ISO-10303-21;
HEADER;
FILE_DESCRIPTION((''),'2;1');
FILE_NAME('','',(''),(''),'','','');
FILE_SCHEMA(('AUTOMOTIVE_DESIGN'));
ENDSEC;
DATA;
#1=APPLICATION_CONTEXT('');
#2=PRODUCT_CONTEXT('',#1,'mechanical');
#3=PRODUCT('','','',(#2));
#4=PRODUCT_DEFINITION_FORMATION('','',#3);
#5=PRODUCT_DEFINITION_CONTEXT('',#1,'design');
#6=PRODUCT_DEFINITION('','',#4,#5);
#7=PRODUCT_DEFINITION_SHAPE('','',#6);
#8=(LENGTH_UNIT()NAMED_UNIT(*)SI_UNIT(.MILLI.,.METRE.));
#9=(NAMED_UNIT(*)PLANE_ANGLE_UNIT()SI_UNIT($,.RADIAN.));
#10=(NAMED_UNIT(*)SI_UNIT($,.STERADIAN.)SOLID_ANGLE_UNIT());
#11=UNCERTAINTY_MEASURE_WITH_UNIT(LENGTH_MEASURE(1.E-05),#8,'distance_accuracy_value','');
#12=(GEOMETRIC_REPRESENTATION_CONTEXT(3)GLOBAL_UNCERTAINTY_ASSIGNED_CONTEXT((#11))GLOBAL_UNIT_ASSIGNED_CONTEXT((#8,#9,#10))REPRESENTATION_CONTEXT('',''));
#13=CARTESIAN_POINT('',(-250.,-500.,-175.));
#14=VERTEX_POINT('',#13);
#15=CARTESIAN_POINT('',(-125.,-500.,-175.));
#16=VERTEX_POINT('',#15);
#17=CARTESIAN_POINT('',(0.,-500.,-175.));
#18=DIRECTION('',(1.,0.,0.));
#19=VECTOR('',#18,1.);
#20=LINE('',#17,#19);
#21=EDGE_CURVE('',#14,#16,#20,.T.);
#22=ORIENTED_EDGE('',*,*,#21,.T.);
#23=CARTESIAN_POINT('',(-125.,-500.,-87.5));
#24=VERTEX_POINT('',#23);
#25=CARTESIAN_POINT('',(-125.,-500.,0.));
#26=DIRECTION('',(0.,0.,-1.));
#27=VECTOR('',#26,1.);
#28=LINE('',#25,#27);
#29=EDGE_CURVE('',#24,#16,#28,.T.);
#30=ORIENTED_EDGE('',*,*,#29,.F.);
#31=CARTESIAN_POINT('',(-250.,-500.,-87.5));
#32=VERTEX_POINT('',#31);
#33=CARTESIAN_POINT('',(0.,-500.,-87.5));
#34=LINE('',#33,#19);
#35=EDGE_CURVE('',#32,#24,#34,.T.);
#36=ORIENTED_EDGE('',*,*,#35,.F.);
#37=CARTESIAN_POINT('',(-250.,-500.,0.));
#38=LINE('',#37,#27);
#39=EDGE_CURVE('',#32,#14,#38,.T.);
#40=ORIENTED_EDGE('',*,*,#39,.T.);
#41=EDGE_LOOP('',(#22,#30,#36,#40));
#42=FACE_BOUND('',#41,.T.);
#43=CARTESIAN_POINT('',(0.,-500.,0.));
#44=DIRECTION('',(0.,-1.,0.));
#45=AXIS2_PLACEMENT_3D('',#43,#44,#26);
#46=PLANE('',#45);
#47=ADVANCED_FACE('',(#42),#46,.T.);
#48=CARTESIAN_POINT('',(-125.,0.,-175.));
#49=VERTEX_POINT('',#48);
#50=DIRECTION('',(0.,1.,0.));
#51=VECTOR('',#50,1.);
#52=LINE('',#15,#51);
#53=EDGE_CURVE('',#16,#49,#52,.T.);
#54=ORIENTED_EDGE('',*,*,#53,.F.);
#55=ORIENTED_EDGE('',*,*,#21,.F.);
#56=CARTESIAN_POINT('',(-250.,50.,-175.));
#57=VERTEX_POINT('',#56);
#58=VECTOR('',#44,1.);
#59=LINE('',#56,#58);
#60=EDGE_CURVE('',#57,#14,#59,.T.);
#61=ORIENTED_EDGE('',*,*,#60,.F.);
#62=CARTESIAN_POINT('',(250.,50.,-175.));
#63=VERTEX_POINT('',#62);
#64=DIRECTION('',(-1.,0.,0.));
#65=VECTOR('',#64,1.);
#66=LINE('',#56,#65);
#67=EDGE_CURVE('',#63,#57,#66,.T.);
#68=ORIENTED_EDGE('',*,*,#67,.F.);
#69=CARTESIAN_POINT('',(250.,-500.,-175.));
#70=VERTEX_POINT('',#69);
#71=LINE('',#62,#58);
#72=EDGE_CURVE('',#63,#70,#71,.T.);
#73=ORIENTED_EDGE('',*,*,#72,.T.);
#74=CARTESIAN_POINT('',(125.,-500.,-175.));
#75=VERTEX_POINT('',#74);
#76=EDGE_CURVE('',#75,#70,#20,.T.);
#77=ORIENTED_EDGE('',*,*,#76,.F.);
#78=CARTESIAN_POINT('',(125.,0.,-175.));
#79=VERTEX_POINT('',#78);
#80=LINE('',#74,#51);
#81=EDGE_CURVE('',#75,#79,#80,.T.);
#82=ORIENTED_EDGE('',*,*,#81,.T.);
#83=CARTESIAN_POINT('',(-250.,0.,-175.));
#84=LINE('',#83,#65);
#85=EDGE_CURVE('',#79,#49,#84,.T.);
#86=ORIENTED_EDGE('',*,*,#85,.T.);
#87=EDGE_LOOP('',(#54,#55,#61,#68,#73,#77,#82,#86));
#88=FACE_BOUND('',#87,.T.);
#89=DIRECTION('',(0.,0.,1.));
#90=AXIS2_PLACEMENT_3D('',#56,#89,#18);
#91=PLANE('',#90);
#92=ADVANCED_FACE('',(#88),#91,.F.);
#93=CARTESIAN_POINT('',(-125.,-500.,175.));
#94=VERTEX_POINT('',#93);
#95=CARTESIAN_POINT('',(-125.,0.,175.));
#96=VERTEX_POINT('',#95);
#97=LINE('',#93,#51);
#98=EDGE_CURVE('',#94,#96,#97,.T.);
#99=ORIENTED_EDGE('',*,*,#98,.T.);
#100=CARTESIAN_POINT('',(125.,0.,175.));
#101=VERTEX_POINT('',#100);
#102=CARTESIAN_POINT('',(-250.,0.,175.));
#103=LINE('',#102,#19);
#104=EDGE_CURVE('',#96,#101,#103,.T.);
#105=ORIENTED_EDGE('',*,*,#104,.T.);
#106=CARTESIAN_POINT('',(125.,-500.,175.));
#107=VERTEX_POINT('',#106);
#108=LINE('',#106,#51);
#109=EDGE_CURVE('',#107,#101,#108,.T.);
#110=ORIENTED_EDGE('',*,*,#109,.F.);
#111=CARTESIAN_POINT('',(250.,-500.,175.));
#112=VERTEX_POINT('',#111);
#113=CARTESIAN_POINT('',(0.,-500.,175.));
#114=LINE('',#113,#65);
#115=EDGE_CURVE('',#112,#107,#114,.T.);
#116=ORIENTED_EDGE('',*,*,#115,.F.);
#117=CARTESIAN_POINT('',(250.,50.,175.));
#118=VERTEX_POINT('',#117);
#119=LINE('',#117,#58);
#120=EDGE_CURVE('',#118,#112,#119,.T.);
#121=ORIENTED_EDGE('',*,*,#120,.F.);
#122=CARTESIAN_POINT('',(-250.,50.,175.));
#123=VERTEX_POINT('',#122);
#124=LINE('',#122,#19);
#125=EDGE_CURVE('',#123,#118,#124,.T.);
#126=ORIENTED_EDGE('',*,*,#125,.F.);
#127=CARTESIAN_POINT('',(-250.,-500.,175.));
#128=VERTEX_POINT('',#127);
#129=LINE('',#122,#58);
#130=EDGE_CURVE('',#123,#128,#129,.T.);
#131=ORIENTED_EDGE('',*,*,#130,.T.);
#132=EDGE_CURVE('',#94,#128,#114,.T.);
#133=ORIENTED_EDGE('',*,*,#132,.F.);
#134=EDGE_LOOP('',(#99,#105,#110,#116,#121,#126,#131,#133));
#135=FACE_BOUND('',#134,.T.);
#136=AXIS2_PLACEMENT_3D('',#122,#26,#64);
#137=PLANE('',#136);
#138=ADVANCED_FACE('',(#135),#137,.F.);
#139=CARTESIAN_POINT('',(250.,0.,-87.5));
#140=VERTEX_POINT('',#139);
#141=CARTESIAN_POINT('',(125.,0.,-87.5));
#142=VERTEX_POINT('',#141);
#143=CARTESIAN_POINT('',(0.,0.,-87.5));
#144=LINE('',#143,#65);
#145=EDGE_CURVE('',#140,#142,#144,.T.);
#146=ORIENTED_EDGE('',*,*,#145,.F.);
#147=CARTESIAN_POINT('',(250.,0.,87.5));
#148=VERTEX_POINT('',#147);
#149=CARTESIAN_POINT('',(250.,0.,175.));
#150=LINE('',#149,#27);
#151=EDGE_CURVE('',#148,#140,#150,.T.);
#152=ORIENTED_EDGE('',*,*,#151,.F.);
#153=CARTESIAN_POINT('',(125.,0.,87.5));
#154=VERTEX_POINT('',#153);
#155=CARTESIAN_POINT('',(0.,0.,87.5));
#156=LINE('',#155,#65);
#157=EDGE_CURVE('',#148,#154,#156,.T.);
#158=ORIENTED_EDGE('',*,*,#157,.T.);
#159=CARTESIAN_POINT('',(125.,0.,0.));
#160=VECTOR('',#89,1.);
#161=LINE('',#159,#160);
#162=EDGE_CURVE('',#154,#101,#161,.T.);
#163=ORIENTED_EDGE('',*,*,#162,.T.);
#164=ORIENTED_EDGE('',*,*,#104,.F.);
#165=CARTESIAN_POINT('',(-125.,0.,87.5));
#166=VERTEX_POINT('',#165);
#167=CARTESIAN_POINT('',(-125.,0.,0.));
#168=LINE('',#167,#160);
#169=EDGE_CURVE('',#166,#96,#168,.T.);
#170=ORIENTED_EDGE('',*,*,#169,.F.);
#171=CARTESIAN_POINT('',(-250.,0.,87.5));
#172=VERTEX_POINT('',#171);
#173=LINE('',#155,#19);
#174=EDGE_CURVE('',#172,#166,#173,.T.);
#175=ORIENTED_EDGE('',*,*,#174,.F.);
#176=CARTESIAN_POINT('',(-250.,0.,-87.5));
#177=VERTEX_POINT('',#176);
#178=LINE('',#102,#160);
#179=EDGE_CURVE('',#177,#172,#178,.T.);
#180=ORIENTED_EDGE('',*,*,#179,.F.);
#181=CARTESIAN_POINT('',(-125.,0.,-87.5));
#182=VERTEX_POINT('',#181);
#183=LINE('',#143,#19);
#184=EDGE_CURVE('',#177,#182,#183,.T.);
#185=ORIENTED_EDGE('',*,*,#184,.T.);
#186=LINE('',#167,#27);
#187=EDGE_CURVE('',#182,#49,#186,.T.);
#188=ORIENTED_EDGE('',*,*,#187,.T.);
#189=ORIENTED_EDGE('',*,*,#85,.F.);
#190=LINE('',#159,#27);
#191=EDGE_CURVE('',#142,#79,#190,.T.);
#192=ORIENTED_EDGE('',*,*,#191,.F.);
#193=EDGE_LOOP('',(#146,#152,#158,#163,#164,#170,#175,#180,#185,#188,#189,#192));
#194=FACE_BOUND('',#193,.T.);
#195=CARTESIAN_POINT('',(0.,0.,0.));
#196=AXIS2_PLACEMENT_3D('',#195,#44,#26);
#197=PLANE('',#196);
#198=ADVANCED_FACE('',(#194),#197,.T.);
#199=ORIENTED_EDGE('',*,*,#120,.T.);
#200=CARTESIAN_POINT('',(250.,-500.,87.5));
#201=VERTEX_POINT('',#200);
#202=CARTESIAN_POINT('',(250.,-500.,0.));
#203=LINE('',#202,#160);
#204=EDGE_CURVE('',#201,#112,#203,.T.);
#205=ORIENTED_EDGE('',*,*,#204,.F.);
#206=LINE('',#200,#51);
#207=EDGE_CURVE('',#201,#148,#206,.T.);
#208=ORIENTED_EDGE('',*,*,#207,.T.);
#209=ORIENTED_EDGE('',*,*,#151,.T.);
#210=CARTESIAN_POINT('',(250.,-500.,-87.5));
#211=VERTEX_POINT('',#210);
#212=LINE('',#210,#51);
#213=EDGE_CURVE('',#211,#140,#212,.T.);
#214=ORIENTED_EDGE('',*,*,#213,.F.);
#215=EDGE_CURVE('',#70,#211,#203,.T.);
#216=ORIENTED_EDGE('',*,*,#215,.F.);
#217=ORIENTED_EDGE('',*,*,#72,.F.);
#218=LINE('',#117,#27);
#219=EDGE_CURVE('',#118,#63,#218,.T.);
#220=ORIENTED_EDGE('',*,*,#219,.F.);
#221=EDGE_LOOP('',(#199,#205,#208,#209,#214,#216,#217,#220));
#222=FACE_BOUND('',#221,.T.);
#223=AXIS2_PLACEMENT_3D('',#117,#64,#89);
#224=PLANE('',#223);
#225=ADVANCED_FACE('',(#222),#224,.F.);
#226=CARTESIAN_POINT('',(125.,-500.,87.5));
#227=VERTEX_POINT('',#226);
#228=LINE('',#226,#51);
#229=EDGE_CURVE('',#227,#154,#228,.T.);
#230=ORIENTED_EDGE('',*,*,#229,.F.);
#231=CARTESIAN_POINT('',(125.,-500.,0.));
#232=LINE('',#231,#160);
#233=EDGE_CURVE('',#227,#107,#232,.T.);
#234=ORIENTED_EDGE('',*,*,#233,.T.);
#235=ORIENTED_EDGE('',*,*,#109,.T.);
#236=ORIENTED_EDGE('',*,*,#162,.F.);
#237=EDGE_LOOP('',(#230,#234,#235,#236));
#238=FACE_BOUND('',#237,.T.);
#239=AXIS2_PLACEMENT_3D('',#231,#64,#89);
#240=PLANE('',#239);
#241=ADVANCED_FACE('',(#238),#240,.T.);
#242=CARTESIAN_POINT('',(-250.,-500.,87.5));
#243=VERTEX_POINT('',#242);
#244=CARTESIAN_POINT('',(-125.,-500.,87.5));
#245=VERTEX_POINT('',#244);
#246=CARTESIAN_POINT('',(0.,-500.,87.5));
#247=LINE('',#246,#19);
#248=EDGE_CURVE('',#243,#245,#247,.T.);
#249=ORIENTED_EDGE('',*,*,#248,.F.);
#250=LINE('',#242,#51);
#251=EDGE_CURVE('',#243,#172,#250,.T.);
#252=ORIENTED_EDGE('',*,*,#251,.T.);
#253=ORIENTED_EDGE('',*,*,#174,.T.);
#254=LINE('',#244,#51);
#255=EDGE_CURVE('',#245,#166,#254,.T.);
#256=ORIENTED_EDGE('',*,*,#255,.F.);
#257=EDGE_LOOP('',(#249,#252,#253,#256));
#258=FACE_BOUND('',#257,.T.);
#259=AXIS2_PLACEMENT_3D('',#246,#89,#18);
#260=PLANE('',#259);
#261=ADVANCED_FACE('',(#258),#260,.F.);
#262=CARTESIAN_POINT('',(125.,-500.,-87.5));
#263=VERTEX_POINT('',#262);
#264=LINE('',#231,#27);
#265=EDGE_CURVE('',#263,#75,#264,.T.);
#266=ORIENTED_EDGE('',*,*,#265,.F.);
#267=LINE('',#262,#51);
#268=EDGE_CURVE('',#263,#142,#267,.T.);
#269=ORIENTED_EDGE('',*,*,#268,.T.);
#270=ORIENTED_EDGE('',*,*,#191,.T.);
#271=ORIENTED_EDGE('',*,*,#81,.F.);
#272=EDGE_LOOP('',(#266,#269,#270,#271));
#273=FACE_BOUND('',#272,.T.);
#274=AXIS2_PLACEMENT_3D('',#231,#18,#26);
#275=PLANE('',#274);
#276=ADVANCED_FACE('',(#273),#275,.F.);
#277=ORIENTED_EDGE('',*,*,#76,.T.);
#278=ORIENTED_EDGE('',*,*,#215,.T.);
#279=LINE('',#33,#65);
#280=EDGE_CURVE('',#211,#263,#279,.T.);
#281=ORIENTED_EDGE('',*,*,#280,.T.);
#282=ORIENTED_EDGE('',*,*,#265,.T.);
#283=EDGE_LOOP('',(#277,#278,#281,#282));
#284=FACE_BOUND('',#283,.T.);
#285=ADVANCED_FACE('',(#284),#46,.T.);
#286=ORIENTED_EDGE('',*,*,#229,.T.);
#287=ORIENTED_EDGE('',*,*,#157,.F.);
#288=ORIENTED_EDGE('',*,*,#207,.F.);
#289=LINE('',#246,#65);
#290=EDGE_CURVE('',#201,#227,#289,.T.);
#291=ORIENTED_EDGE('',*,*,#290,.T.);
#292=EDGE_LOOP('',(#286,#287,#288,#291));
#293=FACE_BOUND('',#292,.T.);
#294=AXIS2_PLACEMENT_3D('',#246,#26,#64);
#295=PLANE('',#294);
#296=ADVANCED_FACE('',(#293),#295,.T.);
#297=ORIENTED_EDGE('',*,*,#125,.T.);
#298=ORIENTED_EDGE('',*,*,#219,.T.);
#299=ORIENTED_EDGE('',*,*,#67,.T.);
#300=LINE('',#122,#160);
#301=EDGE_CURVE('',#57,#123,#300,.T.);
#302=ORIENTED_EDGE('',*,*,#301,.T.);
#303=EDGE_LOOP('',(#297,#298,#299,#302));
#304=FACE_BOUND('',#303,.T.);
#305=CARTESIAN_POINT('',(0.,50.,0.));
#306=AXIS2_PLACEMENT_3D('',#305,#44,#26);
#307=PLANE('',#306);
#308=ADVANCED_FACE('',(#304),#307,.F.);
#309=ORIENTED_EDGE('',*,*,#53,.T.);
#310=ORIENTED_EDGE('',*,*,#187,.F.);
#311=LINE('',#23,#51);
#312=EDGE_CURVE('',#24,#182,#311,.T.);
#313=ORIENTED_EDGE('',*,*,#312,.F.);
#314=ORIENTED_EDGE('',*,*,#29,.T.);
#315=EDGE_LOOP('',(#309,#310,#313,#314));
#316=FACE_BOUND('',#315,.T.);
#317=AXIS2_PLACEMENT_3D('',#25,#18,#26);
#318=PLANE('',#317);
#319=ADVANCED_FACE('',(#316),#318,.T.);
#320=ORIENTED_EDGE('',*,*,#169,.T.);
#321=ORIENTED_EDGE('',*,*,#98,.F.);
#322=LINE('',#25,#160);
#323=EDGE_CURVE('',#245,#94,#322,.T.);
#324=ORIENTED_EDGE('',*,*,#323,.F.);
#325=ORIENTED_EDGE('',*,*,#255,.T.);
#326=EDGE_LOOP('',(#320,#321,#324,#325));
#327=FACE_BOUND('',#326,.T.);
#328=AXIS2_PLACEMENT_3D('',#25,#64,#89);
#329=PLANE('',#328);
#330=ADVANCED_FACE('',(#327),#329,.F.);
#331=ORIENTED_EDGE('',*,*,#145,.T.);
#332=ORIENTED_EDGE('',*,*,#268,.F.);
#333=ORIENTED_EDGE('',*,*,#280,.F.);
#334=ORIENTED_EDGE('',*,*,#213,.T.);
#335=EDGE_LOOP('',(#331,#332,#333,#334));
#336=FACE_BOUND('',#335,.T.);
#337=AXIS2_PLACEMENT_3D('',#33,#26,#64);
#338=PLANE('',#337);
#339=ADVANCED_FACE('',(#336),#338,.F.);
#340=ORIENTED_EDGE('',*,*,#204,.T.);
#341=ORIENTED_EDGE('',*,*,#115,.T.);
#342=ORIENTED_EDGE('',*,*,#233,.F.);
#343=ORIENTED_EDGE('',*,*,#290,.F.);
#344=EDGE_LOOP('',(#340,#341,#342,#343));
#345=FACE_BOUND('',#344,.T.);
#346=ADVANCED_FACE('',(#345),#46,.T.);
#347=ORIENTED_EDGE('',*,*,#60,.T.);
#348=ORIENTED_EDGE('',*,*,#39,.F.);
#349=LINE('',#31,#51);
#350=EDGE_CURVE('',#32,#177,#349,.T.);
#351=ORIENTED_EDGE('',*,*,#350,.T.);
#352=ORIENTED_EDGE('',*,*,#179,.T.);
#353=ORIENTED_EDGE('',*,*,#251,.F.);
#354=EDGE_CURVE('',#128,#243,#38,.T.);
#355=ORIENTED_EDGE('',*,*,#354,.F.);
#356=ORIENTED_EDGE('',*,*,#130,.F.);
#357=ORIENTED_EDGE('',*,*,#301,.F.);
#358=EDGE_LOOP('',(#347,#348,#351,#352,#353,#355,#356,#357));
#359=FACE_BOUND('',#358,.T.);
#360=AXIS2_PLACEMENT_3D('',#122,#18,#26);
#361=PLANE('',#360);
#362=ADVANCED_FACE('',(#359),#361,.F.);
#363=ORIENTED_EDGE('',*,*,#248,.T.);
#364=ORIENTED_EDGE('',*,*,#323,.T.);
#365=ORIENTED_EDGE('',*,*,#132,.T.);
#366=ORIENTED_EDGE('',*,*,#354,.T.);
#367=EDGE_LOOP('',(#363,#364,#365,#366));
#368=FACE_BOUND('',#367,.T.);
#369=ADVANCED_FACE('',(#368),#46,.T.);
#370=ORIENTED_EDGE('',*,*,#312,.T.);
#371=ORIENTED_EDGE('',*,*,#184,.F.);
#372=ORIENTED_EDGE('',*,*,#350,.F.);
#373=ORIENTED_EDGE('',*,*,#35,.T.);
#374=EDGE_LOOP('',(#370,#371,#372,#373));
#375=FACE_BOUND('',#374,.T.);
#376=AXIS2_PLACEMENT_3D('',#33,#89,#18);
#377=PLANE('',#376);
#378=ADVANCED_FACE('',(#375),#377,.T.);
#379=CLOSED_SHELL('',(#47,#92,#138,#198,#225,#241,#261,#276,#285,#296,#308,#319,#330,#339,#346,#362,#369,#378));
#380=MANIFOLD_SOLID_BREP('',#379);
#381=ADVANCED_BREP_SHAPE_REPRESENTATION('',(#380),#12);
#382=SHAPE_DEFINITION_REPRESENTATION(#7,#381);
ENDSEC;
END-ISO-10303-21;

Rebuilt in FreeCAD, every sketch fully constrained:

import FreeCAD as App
import Part
import Sketcher
Q = App.Units.Quantity

doc = App.newDocument("Part")
params = doc.addObject("Spreadsheet::Sheet", "Params")
for row, (alias, value) in enumerate([
    ("sketch1_width", "500 mm"),
    ("sketch1_height", "350 mm"),
    ("pad1_length", "50 mm"),
    ("sketch2_width", "125 mm"),
    ("sketch2_height", "87.5 mm"),
    ("pad2_length", "500 mm"),
], start=1):
    params.set(f"A{row}", alias)
    params.set(f"B{row}", "=" + value)
    params.setAlias(f"B{row}", alias)

body = doc.addObject("PartDesign::Body", "Body")

# Sketch on XZ plane
sketch1 = body.newObject("Sketcher::SketchObject", "Sketch")
sketch1.AttachmentSupport = (doc.getObject("XZ_Plane"), [""])
sketch1.MapMode = "FlatFace"
sketch1.addGeometry([
    Part.LineSegment(App.Vector(-250, -175, 0), App.Vector(-250, 175, 0)),
    Part.LineSegment(App.Vector(-250, 175, 0), App.Vector(250, 175, 0)),
    Part.LineSegment(App.Vector(250, 175, 0), App.Vector(250, -175, 0)),
    Part.LineSegment(App.Vector(250, -175, 0), App.Vector(-250, -175, 0)),
], False)
sketch1.addConstraint([
    Sketcher.Constraint("Coincident", 0, 2, 1, 1),
    Sketcher.Constraint("Coincident", 1, 2, 2, 1),
    Sketcher.Constraint("Coincident", 2, 2, 3, 1),
    Sketcher.Constraint("Coincident", 3, 2, 0, 1),
    Sketcher.Constraint("Vertical", 0),
    Sketcher.Constraint("Horizontal", 1),
    Sketcher.Constraint("Vertical", 2),
    Sketcher.Constraint("Horizontal", 3),
    Sketcher.Constraint("Symmetric", 0, 2, 2, 2, -1, 1),
    Sketcher.Constraint("DistanceX", 1, 1, 1, 2, Q("500 mm")),
    Sketcher.Constraint("DistanceY", 0, 1, 0, 2, Q("350 mm")),
])
sketch1.setExpression("Constraints[9]", "Params.sketch1_width")
sketch1.setExpression("Constraints[10]", "Params.sketch1_height")
pad1 = body.newObject("PartDesign::Pad", "Pad")
pad1.Profile = sketch1
pad1.setExpression("Length", "Params.pad1_length")
pad1.Reversed = True

# Sketch on XZ plane
sketch2 = body.newObject("Sketcher::SketchObject", "Sketch001")
sketch2.AttachmentSupport = (doc.getObject("XZ_Plane"), [""])
sketch2.MapMode = "FlatFace"
sketch2.addGeometry([
    Part.LineSegment(App.Vector(-250, 175, 0), App.Vector(-250, 87.5, 0)),  # 0
    Part.LineSegment(App.Vector(-250, 87.5, 0), App.Vector(-125, 87.5, 0)),  # 1
    Part.LineSegment(App.Vector(-125, 87.5, 0), App.Vector(-125, 175, 0)),  # 2
    Part.LineSegment(App.Vector(-125, 175, 0), App.Vector(-250, 175, 0)),  # 3
    Part.LineSegment(App.Vector(-250, -87.5, 0), App.Vector(-250, -175, 0)),  # 4
    Part.LineSegment(App.Vector(-250, -175, 0), App.Vector(-125, -175, 0)),  # 5
    Part.LineSegment(App.Vector(-125, -175, 0), App.Vector(-125, -87.5, 0)),  # 6
    Part.LineSegment(App.Vector(-125, -87.5, 0), App.Vector(-250, -87.5, 0)),  # 7
    Part.LineSegment(App.Vector(125, -87.5, 0), App.Vector(125, -175, 0)),  # 8
    Part.LineSegment(App.Vector(125, -175, 0), App.Vector(250, -175, 0)),  # 9
    Part.LineSegment(App.Vector(250, -175, 0), App.Vector(250, -87.5, 0)),  # 10
    Part.LineSegment(App.Vector(250, -87.5, 0), App.Vector(125, -87.5, 0)),  # 11
    Part.LineSegment(App.Vector(125, 175, 0), App.Vector(125, 87.5, 0)),  # 12
    Part.LineSegment(App.Vector(125, 87.5, 0), App.Vector(250, 87.5, 0)),  # 13
    Part.LineSegment(App.Vector(250, 87.5, 0), App.Vector(250, 175, 0)),  # 14
    Part.LineSegment(App.Vector(250, 175, 0), App.Vector(125, 175, 0)),  # 15
], False)
sketch2.addConstraint([
    Sketcher.Constraint("Coincident", 0, 2, 1, 1),
    Sketcher.Constraint("Coincident", 1, 2, 2, 1),
    Sketcher.Constraint("Coincident", 2, 2, 3, 1),
    Sketcher.Constraint("Coincident", 3, 2, 0, 1),
    Sketcher.Constraint("Coincident", 4, 2, 5, 1),
    Sketcher.Constraint("Coincident", 5, 2, 6, 1),
    Sketcher.Constraint("Coincident", 6, 2, 7, 1),
    Sketcher.Constraint("Coincident", 7, 2, 4, 1),
    Sketcher.Constraint("Coincident", 8, 2, 9, 1),
    Sketcher.Constraint("Coincident", 9, 2, 10, 1),
    Sketcher.Constraint("Coincident", 10, 2, 11, 1),
    Sketcher.Constraint("Coincident", 11, 2, 8, 1),
    Sketcher.Constraint("Coincident", 12, 2, 13, 1),
    Sketcher.Constraint("Coincident", 13, 2, 14, 1),
    Sketcher.Constraint("Coincident", 14, 2, 15, 1),
    Sketcher.Constraint("Coincident", 15, 2, 12, 1),
    Sketcher.Constraint("Vertical", 0),
    Sketcher.Constraint("Horizontal", 1),
    Sketcher.Constraint("Vertical", 2),
    Sketcher.Constraint("Horizontal", 3),
    Sketcher.Constraint("Vertical", 4),
    Sketcher.Constraint("Horizontal", 5),
    Sketcher.Constraint("Vertical", 6),
    Sketcher.Constraint("Horizontal", 7),
    Sketcher.Constraint("Vertical", 8),
    Sketcher.Constraint("Horizontal", 9),
    Sketcher.Constraint("Vertical", 10),
    Sketcher.Constraint("Horizontal", 11),
    Sketcher.Constraint("Vertical", 12),
    Sketcher.Constraint("Horizontal", 13),
    Sketcher.Constraint("Vertical", 14),
    Sketcher.Constraint("Horizontal", 15),
    Sketcher.Constraint("Symmetric", 2, 2, 8, 2, -1, 1),
    Sketcher.Constraint("Symmetric", 0, 2, 10, 2, -1, 1),
    Sketcher.Constraint("Symmetric", 6, 2, 12, 2, -1, 1),
    Sketcher.Constraint("Symmetric", 4, 2, 14, 2, -1, 1),
    Sketcher.Constraint("Symmetric", 5, 2, 8, 2, -2),
    Sketcher.Constraint("Symmetric", 7, 2, 10, 2, -2),
    Sketcher.Constraint("DistanceX", 1, 1, 1, 2, Q("125 mm")),
    Sketcher.Constraint("DistanceY", 0, 2, 0, 1, Q("87.5 mm")),
    Sketcher.Constraint("DistanceX", 0, 2, -1, 1, Q("250 mm")),
    Sketcher.Constraint("DistanceY", -1, 1, 2, 2, Q("175 mm")),
])
sketch2.setExpression("Constraints[38]", "Params.sketch2_width")
sketch2.setExpression("Constraints[39]", "Params.sketch2_height")
pad2 = body.newObject("PartDesign::Pad", "Pad001")
pad2.Profile = sketch2
pad2.setExpression("Length", "Params.pad2_length")

doc.recompute()
